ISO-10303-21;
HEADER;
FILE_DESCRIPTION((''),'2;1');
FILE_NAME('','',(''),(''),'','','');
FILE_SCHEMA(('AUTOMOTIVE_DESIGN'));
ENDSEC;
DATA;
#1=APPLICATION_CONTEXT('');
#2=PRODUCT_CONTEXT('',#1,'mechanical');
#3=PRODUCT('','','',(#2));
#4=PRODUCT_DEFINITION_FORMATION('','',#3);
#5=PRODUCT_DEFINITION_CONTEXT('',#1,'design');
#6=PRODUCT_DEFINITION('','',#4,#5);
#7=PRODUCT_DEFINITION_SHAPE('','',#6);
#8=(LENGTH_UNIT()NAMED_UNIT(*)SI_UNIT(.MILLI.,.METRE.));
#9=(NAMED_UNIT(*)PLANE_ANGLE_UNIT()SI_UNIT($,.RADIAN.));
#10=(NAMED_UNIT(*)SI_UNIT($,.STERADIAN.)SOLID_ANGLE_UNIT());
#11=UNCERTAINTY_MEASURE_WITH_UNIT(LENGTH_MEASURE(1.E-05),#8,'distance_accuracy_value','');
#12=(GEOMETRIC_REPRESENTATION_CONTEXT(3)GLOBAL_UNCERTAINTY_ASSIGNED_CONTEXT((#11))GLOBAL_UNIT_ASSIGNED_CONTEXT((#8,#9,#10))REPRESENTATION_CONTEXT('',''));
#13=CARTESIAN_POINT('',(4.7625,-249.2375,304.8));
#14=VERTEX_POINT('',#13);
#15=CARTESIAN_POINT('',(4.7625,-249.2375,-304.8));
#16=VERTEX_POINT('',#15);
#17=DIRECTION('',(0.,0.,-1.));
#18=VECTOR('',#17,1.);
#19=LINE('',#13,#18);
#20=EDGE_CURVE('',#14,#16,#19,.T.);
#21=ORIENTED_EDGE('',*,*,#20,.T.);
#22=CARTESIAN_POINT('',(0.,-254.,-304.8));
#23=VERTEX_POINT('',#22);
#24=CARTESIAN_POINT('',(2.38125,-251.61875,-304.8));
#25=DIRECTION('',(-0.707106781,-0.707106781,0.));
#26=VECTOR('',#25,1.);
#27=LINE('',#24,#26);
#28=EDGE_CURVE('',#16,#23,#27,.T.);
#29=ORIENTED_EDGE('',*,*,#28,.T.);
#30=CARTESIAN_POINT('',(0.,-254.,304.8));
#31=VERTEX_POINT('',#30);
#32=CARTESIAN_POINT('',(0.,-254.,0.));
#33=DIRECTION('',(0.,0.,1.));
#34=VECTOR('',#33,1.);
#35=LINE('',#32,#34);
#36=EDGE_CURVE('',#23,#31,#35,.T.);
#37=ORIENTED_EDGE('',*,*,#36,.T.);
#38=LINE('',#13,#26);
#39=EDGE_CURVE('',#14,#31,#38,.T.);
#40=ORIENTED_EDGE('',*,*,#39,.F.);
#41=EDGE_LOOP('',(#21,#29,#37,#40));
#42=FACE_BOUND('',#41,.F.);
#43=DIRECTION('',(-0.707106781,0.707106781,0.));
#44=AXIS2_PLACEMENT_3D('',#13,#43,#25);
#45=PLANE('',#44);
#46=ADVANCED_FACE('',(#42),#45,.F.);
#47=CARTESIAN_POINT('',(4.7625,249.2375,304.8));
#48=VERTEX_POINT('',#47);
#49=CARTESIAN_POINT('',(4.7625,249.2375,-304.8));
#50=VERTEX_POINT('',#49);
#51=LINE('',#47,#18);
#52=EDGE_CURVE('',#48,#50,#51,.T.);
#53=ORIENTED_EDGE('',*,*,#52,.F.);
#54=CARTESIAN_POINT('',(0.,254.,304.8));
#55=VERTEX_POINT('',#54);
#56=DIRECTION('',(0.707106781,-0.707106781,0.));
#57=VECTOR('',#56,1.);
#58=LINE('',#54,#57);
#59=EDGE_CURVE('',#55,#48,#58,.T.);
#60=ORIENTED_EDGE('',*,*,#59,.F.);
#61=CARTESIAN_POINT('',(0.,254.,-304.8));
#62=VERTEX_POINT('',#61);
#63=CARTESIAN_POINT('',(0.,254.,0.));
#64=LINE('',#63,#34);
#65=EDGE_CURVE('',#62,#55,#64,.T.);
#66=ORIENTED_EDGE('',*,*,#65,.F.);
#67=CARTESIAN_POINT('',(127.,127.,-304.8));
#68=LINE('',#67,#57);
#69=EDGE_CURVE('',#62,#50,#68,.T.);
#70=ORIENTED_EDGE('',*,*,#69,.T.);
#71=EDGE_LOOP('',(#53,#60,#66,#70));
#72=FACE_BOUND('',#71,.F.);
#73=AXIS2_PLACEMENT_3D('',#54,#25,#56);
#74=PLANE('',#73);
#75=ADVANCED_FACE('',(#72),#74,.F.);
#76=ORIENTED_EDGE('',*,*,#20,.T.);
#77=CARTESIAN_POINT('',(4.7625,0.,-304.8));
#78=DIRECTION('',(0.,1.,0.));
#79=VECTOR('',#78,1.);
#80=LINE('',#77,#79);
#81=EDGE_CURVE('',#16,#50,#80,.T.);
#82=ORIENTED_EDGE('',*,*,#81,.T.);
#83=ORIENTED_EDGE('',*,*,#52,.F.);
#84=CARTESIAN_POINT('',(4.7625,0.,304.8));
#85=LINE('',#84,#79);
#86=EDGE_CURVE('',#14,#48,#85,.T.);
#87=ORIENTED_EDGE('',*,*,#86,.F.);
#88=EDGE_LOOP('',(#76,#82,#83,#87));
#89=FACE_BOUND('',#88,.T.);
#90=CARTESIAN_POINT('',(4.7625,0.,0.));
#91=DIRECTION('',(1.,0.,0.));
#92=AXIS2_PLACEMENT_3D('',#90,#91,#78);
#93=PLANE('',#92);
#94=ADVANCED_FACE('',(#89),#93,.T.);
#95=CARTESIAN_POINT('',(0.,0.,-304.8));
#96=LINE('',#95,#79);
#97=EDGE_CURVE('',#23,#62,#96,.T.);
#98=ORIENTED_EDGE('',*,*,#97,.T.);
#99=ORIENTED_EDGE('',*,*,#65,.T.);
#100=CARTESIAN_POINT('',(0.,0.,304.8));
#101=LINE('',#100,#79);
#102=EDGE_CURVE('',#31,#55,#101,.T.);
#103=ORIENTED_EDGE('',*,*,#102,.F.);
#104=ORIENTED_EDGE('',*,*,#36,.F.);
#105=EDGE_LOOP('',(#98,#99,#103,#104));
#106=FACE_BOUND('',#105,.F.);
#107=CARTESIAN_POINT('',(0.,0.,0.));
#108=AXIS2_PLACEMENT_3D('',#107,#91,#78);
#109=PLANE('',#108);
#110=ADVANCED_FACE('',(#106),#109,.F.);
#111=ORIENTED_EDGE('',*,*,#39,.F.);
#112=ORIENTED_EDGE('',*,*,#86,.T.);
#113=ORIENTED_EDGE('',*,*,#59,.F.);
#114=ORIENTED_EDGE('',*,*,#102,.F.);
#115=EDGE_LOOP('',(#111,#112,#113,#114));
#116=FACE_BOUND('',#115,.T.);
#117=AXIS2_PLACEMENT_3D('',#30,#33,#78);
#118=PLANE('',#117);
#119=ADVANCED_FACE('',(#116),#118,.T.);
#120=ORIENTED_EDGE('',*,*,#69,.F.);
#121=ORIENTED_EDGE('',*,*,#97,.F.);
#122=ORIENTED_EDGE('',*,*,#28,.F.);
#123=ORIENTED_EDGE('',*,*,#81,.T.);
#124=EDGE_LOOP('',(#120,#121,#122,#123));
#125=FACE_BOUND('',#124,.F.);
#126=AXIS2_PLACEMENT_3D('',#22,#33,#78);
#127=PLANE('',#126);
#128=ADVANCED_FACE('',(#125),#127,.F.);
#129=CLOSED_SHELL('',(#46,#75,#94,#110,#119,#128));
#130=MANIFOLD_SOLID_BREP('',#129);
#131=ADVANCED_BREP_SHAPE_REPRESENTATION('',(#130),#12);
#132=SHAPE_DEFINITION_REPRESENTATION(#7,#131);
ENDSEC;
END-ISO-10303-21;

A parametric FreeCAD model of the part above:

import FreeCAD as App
import Part
import Sketcher
from FreeCAD import Vector
Q = App.Units.Quantity


def add_polygon(sketch, points):
    """Adds a closed chain of lines whose ends are joined by coincident constraints."""
    first, n = sketch.GeometryCount, len(points)
    for a, b in zip(points, points[1:] + points[:1]):
        sketch.addGeometry(Part.LineSegment(App.Vector(*a, 0), App.Vector(*b, 0)), False)
    for i in range(n):
        sketch.addConstraint(Sketcher.Constraint("Coincident", first + i, 2, first + (i + 1) % n, 1))

doc = App.newDocument("Part")
body = doc.addObject("PartDesign::Body", "Body")

# Sketch on YZ plane
sketch1 = doc.addObject("Sketcher::SketchObject", "Sketch")
body.addObject(sketch1)
sketch1.AttachmentSupport = (doc.YZ_Plane, [""])
sketch1.MapMode = "FlatFace"
add_polygon(sketch1, [(-254, 304.8), (-254, -304.8), (254, -304.8), (254, 304.8)])  # lines 0-3
sketch1.addConstraint([
    Sketcher.Constraint("Vertical", 0),
    Sketcher.Constraint("Horizontal", 1),
    Sketcher.Constraint("Vertical", 2),
    Sketcher.Constraint("Horizontal", 3),
    Sketcher.Constraint("Symmetric", 0, 2, 2, 2, -1, 1),
    Sketcher.Constraint("DistanceX", 1, 1, 1, 2, Q("20 in")),
    Sketcher.Constraint("DistanceY", 0, 2, 0, 1, Q("24 in")),
])
pad1 = doc.addObject("PartDesign::Pad", "Pad")
body.addObject(pad1)
pad1.Profile = sketch1
pad1.Length = Q("0.1875 in")

# Sketch on XY plane
sketch2 = doc.addObject("Sketcher::SketchObject", "Sketch001")
body.addObject(sketch2)
sketch2.AttachmentSupport = (doc.XY_Plane, [""])
sketch2.MapMode = "FlatFace"
sketch2.AttachmentOffset = App.Placement(Vector(0, 0, 12 * 25.4), App.Rotation())
add_polygon(sketch2, [(0, -254), (4.7625, -254), (4.7625, -249.2375)])  # lines 0-2
sketch2.addConstraint([
    Sketcher.Constraint("Horizontal", 0),
    Sketcher.Constraint("Vertical", 1),
    Sketcher.Constraint("PointOnObject", 2, 2, -2),
    Sketcher.Constraint("Equal", 0, 1),
    Sketcher.Constraint("DistanceY", 0, 2, -1, 1, Q("10 in")),
    Sketcher.Constraint("DistanceX", 0, 1, 0, 2, Q("0.1875 in")),
])
pocket1 = doc.addObject("PartDesign::Pocket", "Pocket")
body.addObject(pocket1)
pocket1.Profile = sketch2
pocket1.Type = "ThroughAll"

# Sketch on XY plane
sketch3 = doc.addObject("Sketcher::SketchObject", "Sketch002")
body.addObject(sketch3)
sketch3.AttachmentSupport = (doc.XY_Plane, [""])
sketch3.MapMode = "FlatFace"
sketch3.AttachmentOffset = App.Placement(Vector(0, 0, 12 * 25.4), App.Rotation())
add_polygon(sketch3, [(4.7625, 249.2375), (4.7625, 254), (0, 254)])  # lines 0-2
sketch3.addConstraint([
    Sketcher.Constraint("Vertical", 0),
    Sketcher.Constraint("Horizontal", 1),
    Sketcher.Constraint("PointOnObject", 1, 2, -2),
    Sketcher.Constraint("Equal", 1, 0),
    Sketcher.Constraint("DistanceY", -1, 1, 0, 2, Q("10 in")),
    Sketcher.Constraint("DistanceX", 1, 2, 1, 1, Q("0.1875 in")),
])
pocket2 = doc.addObject("PartDesign::Pocket", "Pocket001")
body.addObject(pocket2)
pocket2.Profile = sketch3
pocket2.Type = "ThroughAll"

doc.recompute()
